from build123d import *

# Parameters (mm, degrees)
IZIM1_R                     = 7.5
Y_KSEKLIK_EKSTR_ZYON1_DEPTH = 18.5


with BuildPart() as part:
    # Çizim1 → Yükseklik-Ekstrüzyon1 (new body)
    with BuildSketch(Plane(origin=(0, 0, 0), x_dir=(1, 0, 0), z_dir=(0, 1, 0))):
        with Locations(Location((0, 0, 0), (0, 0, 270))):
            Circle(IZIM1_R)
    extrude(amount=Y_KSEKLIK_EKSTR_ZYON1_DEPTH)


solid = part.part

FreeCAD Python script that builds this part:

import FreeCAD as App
import Part
import Sketcher
from FreeCAD import Vector

doc = App.newDocument("Part")
body = doc.addObject("PartDesign::Body", "Body")

# Sketch on XZ plane
sketch1 = body.newObject("Sketcher::SketchObject", "Sketch")
sketch1.AttachmentSupport = (doc.getObject("XZ_Plane"), [""])
sketch1.MapMode = "FlatFace"
sketch1.addGeometry(Part.Circle(Vector(0, 0, 0), Vector(0, 0, 1), 8), False)
sketch1.addConstraint(Sketcher.Constraint("Coincident", 0, 3, -1, 1))
sketch1.addConstraint(Sketcher.Constraint("Diameter", 0, 15.0))
pad1 = body.newObject("PartDesign::Pad", "Pad")
pad1.Profile = sketch1
pad1.Length = 18.5
pad1.Reversed = True

doc.recompute()
